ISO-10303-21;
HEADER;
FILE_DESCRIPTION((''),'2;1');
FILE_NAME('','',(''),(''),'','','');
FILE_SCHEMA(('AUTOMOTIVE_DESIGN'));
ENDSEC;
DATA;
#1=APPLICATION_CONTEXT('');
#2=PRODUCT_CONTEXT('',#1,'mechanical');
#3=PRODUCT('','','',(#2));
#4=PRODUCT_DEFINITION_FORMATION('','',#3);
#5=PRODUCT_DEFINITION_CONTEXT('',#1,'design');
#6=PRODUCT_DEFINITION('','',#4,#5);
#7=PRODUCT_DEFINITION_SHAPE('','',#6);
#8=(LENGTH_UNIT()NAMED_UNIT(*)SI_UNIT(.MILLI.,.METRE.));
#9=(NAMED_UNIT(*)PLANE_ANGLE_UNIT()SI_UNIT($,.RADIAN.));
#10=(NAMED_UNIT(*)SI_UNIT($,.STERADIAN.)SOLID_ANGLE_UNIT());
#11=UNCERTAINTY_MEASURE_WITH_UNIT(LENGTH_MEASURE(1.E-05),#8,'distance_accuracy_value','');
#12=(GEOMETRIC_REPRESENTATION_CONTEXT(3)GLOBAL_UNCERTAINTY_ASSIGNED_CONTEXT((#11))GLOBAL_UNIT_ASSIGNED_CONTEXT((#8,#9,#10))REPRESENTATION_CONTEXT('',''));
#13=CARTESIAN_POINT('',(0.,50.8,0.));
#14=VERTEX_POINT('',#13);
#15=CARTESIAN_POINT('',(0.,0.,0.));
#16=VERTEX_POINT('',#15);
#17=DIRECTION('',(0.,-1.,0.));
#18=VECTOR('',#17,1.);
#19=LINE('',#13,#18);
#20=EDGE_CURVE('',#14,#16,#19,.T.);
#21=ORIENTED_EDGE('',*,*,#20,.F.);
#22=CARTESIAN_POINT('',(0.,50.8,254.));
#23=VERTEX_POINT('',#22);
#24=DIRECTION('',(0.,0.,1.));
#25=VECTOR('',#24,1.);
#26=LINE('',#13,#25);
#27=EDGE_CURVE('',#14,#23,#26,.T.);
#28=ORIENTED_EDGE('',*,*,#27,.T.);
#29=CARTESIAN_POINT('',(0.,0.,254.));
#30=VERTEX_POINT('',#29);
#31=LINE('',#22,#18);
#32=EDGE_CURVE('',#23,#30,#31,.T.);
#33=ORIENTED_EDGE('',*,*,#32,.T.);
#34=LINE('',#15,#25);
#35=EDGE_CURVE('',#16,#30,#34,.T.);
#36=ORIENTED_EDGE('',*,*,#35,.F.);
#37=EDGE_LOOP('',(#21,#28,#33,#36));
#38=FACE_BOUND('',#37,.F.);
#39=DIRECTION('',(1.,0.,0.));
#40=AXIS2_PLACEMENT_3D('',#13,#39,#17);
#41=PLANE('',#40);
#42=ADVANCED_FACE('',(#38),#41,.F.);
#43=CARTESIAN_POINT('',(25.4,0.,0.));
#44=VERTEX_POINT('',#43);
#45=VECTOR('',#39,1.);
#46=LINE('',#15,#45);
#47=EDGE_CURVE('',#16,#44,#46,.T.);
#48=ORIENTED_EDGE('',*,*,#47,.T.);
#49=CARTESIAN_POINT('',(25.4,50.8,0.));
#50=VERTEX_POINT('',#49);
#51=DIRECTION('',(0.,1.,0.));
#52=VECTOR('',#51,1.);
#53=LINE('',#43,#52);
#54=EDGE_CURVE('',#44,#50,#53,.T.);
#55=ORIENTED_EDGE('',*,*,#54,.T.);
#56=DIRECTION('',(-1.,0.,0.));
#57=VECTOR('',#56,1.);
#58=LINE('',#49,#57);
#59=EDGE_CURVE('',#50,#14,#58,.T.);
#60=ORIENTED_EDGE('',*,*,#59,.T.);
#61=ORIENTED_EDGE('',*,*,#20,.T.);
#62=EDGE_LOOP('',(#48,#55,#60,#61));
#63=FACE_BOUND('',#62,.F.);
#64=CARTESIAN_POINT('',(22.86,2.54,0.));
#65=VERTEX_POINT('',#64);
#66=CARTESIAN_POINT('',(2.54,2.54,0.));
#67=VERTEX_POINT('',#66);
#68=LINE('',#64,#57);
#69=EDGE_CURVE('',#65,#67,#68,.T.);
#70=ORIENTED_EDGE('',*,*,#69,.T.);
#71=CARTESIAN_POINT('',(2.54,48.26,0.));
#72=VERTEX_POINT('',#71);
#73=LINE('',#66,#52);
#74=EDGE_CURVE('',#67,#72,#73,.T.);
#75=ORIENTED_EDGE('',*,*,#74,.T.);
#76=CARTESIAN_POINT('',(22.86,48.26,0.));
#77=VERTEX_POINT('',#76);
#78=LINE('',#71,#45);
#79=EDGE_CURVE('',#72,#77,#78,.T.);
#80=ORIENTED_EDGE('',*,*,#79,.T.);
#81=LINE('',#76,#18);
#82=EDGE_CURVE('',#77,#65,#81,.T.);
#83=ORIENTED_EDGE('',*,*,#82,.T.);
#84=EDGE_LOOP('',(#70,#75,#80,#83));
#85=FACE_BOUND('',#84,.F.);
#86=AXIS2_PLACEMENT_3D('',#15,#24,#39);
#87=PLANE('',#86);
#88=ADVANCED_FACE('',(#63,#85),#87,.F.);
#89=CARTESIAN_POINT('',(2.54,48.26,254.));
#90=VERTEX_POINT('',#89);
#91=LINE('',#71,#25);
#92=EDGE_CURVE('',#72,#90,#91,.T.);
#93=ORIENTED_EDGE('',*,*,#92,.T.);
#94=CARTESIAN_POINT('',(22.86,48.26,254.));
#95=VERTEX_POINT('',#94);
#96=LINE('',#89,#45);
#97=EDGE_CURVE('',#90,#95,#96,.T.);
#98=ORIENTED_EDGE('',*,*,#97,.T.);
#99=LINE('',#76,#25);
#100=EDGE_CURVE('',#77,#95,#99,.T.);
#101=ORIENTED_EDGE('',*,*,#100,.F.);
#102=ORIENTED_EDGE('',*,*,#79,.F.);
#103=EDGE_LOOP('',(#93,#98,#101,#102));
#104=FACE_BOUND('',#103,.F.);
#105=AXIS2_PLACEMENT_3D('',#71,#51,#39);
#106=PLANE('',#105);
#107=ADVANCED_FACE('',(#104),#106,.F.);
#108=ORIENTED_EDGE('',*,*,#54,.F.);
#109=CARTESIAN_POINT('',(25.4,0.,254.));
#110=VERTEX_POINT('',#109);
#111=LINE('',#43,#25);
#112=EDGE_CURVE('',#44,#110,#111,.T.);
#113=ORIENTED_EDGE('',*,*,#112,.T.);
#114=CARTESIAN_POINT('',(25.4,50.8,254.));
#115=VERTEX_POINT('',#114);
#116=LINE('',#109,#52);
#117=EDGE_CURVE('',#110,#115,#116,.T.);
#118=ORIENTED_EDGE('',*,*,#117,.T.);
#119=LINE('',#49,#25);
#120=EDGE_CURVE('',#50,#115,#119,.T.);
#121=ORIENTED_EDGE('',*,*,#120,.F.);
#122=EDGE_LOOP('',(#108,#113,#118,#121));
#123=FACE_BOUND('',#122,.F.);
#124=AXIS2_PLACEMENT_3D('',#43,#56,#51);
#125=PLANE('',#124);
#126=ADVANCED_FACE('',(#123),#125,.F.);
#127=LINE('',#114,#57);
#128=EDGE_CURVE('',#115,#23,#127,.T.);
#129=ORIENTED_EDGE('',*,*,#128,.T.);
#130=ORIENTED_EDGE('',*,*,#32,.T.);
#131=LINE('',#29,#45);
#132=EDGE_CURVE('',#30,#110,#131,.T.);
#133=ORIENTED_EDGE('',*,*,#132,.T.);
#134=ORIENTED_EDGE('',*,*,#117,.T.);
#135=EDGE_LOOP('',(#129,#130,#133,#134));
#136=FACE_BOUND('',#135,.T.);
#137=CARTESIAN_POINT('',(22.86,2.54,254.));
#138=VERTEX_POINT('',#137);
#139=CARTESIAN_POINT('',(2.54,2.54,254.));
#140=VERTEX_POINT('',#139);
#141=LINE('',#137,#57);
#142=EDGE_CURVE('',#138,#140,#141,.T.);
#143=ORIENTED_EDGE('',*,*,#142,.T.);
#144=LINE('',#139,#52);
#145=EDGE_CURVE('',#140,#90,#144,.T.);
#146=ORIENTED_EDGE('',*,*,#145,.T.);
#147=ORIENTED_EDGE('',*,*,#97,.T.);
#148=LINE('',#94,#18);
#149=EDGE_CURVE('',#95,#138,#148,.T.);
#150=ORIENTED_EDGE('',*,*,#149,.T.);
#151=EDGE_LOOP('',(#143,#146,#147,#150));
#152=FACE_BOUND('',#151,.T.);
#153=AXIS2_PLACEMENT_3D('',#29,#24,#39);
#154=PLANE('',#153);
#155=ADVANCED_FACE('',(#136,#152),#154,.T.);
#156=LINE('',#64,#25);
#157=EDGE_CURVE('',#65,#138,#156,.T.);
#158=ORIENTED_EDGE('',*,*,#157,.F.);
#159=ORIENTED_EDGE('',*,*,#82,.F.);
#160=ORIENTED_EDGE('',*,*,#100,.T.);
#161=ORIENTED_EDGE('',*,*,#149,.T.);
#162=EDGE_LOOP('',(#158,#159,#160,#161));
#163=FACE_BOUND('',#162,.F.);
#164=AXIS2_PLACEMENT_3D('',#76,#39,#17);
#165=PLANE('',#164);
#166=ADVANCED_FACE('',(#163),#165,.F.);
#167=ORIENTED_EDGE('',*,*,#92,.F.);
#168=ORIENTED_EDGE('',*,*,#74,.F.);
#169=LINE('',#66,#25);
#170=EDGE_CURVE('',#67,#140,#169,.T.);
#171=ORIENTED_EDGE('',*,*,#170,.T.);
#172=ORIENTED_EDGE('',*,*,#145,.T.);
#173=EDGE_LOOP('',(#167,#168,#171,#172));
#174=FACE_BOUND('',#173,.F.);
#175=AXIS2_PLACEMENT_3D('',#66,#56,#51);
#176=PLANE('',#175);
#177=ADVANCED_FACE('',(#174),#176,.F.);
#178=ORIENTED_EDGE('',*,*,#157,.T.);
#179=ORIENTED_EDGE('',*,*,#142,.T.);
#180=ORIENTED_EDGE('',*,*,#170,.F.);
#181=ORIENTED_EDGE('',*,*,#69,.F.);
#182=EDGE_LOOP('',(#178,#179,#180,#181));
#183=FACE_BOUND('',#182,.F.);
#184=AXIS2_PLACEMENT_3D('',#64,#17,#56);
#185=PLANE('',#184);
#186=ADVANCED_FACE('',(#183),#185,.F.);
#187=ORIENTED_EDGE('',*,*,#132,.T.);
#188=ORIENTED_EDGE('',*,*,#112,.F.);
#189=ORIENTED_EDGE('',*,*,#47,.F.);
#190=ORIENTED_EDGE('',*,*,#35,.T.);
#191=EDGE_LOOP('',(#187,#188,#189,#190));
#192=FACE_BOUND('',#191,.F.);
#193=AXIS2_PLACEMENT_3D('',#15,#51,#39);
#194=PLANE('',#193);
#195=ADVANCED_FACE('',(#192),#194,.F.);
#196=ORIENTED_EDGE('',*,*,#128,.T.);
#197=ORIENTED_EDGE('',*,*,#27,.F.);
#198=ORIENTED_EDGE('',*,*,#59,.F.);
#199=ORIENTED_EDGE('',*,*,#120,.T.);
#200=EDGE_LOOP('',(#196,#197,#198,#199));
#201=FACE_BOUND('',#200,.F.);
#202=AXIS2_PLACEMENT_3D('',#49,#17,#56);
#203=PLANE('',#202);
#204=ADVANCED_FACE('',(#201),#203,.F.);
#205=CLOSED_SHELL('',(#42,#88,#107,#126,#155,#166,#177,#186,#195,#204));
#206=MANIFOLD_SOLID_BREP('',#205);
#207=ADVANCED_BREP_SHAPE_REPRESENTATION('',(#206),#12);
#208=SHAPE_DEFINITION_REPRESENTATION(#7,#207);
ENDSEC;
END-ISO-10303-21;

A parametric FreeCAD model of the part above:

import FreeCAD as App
import Part
import Sketcher
from FreeCAD import Vector
Q = App.Units.Quantity

doc = App.newDocument("Part")
body = doc.addObject("PartDesign::Body", "Body")

# Sketch on XY plane
sketch1 = body.newObject("Sketcher::SketchObject", "Sketch")
sketch1.AttachmentSupport = (doc.getObject("XY_Plane"), [""])
sketch1.MapMode = "FlatFace"
sketch1.addGeometry(Part.LineSegment(Vector(0, 51, 0), Vector(0, 0, 0)), False)
sketch1.addGeometry(Part.LineSegment(Vector(0, 0, 0), Vector(25, 0, 0)), False)
sketch1.addGeometry(Part.LineSegment(Vector(25, 0, 0), Vector(25, 51, 0)), False)
sketch1.addGeometry(Part.LineSegment(Vector(25, 51, 0), Vector(0, 51, 0)), False)
sketch1.addGeometry(Part.LineSegment(Vector(23, 48, 0), Vector(23, 3, 0)), False)
sketch1.addGeometry(Part.LineSegment(Vector(23, 3, 0), Vector(3, 3, 0)), False)
sketch1.addGeometry(Part.LineSegment(Vector(3, 3, 0), Vector(3, 48, 0)), False)
sketch1.addGeometry(Part.LineSegment(Vector(3, 48, 0), Vector(23, 48, 0)), False)
sketch1.addConstraint(Sketcher.Constraint("Coincident", 0, 2, 1, 1))
sketch1.addConstraint(Sketcher.Constraint("Coincident", 1, 2, 2, 1))
sketch1.addConstraint(Sketcher.Constraint("Coincident", 2, 2, 3, 1))
sketch1.addConstraint(Sketcher.Constraint("Coincident", 3, 2, 0, 1))
sketch1.addConstraint(Sketcher.Constraint("Coincident", 4, 2, 5, 1))
sketch1.addConstraint(Sketcher.Constraint("Coincident", 5, 2, 6, 1))
sketch1.addConstraint(Sketcher.Constraint("Coincident", 6, 2, 7, 1))
sketch1.addConstraint(Sketcher.Constraint("Coincident", 7, 2, 4, 1))
sketch1.addConstraint(Sketcher.Constraint("Vertical", 0))
sketch1.addConstraint(Sketcher.Constraint("Horizontal", 1))
sketch1.addConstraint(Sketcher.Constraint("Vertical", 2))
sketch1.addConstraint(Sketcher.Constraint("Horizontal", 3))
sketch1.addConstraint(Sketcher.Constraint("Vertical", 4))
sketch1.addConstraint(Sketcher.Constraint("Horizontal", 5))
sketch1.addConstraint(Sketcher.Constraint("Vertical", 6))
sketch1.addConstraint(Sketcher.Constraint("Horizontal", 7))
sketch1.addConstraint(Sketcher.Constraint("Coincident", 0, 2, -1, 1))
sketch1.addConstraint(Sketcher.Constraint("DistanceX", 1, 1, 1, 2, Q("1 in")))
sketch1.addConstraint(Sketcher.Constraint("DistanceY", 0, 2, 0, 1, Q("2 in")))
sketch1.addConstraint(Sketcher.Constraint("DistanceY", -1, 1, 4, 2, Q("0.1 in")))
sketch1.addConstraint(Sketcher.Constraint("DistanceX", -1, 1, 5, 2, Q("0.1 in")))
sketch1.addConstraint(Sketcher.Constraint("DistanceX", 4, 2, 1, 2, Q("0.1 in")))
sketch1.addConstraint(Sketcher.Constraint("DistanceY", 6, 2, 3, 2, Q("0.1 in")))
pad1 = body.newObject("PartDesign::Pad", "Pad")
pad1.Profile = sketch1
pad1.Length = Q("10 in")

doc.recompute()
